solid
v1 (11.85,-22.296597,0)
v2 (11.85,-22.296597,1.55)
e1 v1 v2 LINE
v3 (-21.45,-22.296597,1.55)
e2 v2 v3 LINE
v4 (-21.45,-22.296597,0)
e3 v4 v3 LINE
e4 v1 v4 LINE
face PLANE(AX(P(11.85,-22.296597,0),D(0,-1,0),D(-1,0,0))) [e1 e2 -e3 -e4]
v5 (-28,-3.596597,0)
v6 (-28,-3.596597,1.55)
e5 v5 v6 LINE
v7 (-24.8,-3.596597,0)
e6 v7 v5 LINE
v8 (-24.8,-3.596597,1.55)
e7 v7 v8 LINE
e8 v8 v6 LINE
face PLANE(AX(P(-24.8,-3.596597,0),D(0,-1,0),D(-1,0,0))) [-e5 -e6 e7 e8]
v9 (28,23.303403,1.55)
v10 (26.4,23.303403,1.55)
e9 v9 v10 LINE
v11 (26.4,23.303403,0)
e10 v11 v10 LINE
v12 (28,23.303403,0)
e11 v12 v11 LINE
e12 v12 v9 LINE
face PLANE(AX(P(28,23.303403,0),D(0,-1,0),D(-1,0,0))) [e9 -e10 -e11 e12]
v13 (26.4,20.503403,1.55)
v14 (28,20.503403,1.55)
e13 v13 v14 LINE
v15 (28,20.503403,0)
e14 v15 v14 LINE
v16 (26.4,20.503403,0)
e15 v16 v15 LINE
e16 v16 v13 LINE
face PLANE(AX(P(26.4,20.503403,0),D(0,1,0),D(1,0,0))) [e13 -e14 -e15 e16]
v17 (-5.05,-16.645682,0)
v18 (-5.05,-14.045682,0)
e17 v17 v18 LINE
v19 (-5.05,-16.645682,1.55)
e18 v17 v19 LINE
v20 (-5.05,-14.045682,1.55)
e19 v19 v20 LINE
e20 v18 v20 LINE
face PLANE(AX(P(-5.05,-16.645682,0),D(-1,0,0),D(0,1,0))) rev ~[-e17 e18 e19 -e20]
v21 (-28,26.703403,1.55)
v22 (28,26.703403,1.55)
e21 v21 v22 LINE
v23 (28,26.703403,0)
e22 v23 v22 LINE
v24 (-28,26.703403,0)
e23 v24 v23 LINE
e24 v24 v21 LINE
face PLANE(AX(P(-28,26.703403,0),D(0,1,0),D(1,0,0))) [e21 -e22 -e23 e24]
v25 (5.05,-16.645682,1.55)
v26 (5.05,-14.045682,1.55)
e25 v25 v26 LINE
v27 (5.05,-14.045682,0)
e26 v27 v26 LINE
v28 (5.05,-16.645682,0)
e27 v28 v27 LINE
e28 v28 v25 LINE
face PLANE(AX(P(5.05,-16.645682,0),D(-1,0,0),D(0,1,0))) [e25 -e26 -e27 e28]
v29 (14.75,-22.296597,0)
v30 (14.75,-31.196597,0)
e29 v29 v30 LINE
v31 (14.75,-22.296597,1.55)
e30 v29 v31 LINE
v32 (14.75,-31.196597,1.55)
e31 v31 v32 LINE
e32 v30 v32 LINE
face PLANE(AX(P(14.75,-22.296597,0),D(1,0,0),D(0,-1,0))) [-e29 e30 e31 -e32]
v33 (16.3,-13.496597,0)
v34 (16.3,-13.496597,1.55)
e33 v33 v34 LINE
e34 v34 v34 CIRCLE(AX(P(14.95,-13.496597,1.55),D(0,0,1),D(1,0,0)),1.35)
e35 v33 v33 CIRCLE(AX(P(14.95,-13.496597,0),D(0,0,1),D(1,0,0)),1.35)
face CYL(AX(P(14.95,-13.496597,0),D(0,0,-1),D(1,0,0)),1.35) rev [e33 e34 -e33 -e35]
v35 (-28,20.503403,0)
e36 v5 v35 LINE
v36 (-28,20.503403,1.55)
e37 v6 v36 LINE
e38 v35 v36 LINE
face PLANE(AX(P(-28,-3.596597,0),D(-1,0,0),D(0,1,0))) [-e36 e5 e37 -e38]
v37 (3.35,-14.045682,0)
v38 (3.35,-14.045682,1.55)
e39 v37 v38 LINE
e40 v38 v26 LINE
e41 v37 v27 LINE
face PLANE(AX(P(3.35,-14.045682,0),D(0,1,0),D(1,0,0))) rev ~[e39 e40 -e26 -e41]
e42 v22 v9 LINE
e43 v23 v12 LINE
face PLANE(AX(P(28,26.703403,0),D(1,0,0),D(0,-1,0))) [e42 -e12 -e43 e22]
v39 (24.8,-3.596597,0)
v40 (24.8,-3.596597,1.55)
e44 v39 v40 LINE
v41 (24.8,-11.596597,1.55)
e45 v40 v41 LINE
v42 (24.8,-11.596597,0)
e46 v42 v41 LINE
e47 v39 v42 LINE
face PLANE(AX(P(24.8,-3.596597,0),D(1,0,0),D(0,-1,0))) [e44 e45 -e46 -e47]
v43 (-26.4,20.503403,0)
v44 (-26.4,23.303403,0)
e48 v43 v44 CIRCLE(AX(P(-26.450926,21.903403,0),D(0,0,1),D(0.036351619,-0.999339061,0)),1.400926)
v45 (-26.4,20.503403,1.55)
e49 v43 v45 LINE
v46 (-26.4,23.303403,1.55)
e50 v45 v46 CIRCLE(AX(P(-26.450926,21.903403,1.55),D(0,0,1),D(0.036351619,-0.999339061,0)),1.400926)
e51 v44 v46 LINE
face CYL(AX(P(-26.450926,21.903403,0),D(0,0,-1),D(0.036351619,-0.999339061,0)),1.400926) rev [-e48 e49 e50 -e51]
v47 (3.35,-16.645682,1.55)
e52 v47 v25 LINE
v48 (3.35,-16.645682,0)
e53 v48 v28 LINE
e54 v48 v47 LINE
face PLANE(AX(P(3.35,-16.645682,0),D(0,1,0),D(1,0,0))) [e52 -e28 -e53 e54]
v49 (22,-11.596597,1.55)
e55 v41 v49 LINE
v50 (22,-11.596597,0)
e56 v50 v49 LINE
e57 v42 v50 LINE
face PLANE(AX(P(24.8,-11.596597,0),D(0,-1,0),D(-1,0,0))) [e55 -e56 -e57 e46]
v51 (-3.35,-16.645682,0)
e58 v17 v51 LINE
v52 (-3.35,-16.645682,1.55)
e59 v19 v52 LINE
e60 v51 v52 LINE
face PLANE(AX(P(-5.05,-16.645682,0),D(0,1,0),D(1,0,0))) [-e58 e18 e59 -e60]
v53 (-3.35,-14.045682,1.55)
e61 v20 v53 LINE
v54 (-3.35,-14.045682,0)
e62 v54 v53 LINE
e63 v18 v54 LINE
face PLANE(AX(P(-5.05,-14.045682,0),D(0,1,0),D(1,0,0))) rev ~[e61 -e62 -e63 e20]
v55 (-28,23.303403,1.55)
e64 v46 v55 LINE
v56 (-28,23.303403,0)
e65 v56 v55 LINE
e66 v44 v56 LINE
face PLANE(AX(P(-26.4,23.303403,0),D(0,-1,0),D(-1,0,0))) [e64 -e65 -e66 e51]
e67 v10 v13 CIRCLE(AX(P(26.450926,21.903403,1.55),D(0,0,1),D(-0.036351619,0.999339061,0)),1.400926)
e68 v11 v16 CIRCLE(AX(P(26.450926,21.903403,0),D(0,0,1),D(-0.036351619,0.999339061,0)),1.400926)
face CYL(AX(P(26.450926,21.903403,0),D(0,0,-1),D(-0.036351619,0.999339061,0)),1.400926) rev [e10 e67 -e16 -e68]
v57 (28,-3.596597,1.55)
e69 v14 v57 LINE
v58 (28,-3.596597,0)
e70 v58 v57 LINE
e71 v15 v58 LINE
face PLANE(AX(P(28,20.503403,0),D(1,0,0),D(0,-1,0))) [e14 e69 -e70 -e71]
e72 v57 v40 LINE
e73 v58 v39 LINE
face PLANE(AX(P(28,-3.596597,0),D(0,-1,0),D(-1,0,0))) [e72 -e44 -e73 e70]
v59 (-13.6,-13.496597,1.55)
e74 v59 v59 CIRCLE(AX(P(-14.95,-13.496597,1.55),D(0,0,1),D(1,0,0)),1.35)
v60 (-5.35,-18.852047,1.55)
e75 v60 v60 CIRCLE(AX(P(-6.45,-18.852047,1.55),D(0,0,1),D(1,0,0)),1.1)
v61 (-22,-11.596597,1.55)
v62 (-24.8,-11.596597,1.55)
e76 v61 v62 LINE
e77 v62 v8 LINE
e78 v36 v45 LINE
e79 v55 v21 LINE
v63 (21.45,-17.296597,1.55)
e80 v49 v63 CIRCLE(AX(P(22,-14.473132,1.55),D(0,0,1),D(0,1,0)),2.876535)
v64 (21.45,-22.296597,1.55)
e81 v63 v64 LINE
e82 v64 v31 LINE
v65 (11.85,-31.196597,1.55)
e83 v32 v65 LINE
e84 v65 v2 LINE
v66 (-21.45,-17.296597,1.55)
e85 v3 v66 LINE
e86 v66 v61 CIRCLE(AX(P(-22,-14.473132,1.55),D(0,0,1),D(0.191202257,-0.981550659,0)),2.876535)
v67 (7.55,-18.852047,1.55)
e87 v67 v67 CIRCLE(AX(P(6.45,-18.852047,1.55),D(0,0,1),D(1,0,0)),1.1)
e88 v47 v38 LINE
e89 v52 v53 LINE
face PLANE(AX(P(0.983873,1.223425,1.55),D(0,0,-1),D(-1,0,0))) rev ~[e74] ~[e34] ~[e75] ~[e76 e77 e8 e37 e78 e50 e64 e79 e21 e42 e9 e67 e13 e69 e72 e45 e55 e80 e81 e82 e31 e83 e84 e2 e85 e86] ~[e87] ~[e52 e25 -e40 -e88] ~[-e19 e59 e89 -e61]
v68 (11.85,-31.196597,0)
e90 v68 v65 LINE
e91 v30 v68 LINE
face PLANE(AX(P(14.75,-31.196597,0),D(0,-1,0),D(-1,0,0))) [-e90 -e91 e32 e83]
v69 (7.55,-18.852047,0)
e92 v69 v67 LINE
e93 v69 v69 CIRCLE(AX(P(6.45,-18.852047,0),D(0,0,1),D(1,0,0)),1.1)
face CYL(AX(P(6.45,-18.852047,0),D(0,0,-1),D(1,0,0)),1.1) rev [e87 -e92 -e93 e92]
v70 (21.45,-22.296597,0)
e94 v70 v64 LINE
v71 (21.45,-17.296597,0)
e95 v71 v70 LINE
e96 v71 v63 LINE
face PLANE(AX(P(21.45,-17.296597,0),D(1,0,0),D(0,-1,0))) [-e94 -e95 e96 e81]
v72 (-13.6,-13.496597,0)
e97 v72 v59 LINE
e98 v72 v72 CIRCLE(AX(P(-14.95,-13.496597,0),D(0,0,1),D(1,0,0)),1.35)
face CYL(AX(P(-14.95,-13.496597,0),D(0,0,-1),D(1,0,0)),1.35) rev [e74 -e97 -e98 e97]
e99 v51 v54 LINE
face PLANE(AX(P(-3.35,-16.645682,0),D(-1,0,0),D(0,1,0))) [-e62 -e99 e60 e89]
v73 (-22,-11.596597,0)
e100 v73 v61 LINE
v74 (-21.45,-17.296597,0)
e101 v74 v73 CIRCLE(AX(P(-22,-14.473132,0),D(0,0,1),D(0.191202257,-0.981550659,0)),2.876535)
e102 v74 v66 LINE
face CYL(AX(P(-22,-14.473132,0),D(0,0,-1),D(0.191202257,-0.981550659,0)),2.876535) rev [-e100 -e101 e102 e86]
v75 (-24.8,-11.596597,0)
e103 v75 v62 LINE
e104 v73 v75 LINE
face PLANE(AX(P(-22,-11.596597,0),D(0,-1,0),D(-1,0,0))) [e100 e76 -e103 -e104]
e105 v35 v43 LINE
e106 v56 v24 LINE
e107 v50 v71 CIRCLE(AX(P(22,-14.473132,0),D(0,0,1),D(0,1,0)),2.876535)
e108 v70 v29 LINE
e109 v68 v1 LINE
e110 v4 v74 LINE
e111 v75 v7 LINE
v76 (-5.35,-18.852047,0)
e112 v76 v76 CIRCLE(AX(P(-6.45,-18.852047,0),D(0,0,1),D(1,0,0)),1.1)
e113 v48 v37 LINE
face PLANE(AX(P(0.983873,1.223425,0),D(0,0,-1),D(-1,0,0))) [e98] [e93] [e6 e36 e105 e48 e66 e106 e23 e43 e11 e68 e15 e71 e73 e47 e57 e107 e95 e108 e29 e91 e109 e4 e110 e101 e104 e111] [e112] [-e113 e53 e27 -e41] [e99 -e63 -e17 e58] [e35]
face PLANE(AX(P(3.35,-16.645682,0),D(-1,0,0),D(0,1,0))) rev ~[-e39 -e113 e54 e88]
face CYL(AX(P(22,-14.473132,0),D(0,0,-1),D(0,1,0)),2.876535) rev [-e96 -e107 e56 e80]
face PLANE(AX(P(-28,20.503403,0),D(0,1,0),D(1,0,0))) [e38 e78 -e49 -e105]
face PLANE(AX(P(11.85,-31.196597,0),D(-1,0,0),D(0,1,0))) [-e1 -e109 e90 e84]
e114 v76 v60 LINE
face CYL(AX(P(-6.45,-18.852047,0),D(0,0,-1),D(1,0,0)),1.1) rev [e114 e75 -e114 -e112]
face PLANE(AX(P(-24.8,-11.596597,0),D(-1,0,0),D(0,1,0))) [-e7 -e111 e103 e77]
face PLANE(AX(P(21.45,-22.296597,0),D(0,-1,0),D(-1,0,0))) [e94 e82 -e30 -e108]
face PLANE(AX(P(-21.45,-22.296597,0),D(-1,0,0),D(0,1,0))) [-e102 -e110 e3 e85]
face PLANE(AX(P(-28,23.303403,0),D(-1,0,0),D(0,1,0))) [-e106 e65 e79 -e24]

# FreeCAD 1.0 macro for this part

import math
import FreeCAD as App
import Part
import Sketcher
Q = App.Units.Quantity

doc = App.newDocument("Part")
params = doc.addObject("Spreadsheet::Sheet", "Params")
for row, (alias, value) in enumerate([
    ("sketch1_diameter", "2.2 mm"),
    ("sketch1_diameter2", "2.7 mm"),
    ("sketch1_width", "56 mm"),
    ("sketch1_height", "8 mm"),
    ("sketch1_height2", "5 mm"),
    ("pad1_length", "1.55 mm"),
], start=1):
    params.set(f"A{row}", alias)
    params.set(f"B{row}", "=" + value)
    params.setAlias(f"B{row}", alias)

body = doc.addObject("PartDesign::Body", "Body")

# Sketch on XY plane
sketch1 = doc.addObject("Sketcher::SketchObject", "Sketch")
body.addObject(sketch1)
sketch1.AttachmentSupport = (doc.XY_Plane, [""])
sketch1.MapMode = "FlatFace"
sketch1.addGeometry(Part.LineSegment(App.Vector(-28, 26.7, 0), App.Vector(-28, 23.3, 0)), False)
sketch1.addGeometry(Part.LineSegment(App.Vector(-28, 23.3, 0), App.Vector(-26.4, 23.3, 0)), False)
sketch1.addGeometry(Part.ArcOfCircle(Part.Circle(App.Vector(-26.5, 21.9, 0), App.Vector(0, 0, 1), 1.4), math.radians(-88), math.radians(88)), False)
sketch1.addGeometry(Part.LineSegment(App.Vector(-26.4, 20.5, 0), App.Vector(-28, 20.5, 0)), False)
sketch1.addGeometry(Part.LineSegment(App.Vector(-28, 20.5, 0), App.Vector(-28, -3.6, 0)), False)
sketch1.addGeometry(Part.LineSegment(App.Vector(-28, -3.6, 0), App.Vector(-24.8, -3.6, 0)), False)
sketch1.addGeometry(Part.LineSegment(App.Vector(-24.8, -3.6, 0), App.Vector(-24.8, -11.6, 0)), False)
sketch1.addGeometry(Part.LineSegment(App.Vector(-24.8, -11.6, 0), App.Vector(-22, -11.6, 0)), False)
sketch1.addGeometry(Part.ArcOfCircle(Part.Circle(App.Vector(-22, -14.5, 0), App.Vector(0, 0, 1), 2.9), math.radians(-79), math.radians(90)), False)
sketch1.addGeometry(Part.LineSegment(App.Vector(-21.4, -17.3, 0), App.Vector(-21.4, -22.3, 0)), False)
sketch1.addGeometry(Part.LineSegment(App.Vector(-21.4, -22.3, 0), App.Vector(11.8, -22.3, 0)), False)
sketch1.addGeometry(Part.LineSegment(App.Vector(11.8, -22.3, 0), App.Vector(11.8, -31.2, 0)), False)
sketch1.addGeometry(Part.LineSegment(App.Vector(11.8, -31.2, 0), App.Vector(14.8, -31.2, 0)), False)
sketch1.addGeometry(Part.LineSegment(App.Vector(14.8, -31.2, 0), App.Vector(14.8, -22.3, 0)), False)
sketch1.addGeometry(Part.LineSegment(App.Vector(14.8, -22.3, 0), App.Vector(21.4, -22.3, 0)), False)
sketch1.addGeometry(Part.LineSegment(App.Vector(21.4, -22.3, 0), App.Vector(21.4, -17.3, 0)), False)
sketch1.addGeometry(Part.ArcOfCircle(Part.Circle(App.Vector(22, -14.5, 0), App.Vector(0, 0, 1), 2.9), math.radians(90), math.radians(259)), False)
sketch1.addGeometry(Part.LineSegment(App.Vector(22, -11.6, 0), App.Vector(24.8, -11.6, 0)), False)
sketch1.addGeometry(Part.LineSegment(App.Vector(24.8, -11.6, 0), App.Vector(24.8, -3.6, 0)), False)
sketch1.addGeometry(Part.LineSegment(App.Vector(24.8, -3.6, 0), App.Vector(28, -3.6, 0)), False)
sketch1.addGeometry(Part.LineSegment(App.Vector(28, -3.6, 0), App.Vector(28, 20.5, 0)), False)
sketch1.addGeometry(Part.LineSegment(App.Vector(28, 20.5, 0), App.Vector(26.4, 20.5, 0)), False)
sketch1.addGeometry(Part.ArcOfCircle(Part.Circle(App.Vector(26.5, 21.9, 0), App.Vector(0, 0, 1), 1.4), math.radians(92), math.radians(268)), False)
sketch1.addGeometry(Part.LineSegment(App.Vector(26.4, 23.3, 0), App.Vector(28, 23.3, 0)), False)
sketch1.addGeometry(Part.LineSegment(App.Vector(28, 23.3, 0), App.Vector(28, 26.7, 0)), False)
sketch1.addGeometry(Part.LineSegment(App.Vector(28, 26.7, 0), App.Vector(-28, 26.7, 0)), False)
sketch1.addGeometry(Part.Circle(App.Vector(6.5, -18.9, 0), App.Vector(0, 0, 1), 1.1), False)
sketch1.addGeometry(Part.Circle(App.Vector(-6.5, -18.9, 0), App.Vector(0, 0, 1), 1.1), False)
sketch1.addGeometry(Part.LineSegment(App.Vector(3.4, -16.6, 0), App.Vector(3.4, -14, 0)), False)
sketch1.addGeometry(Part.LineSegment(App.Vector(3.4, -14, 0), App.Vector(5, -14, 0)), False)
sketch1.addGeometry(Part.LineSegment(App.Vector(5, -14, 0), App.Vector(5, -16.6, 0)), False)
sketch1.addGeometry(Part.LineSegment(App.Vector(5, -16.6, 0), App.Vector(3.4, -16.6, 0)), False)
sketch1.addGeometry(Part.Circle(App.Vector(14.9, -13.5, 0), App.Vector(0, 0, 1), 1.4), False)
sketch1.addGeometry(Part.LineSegment(App.Vector(-5, -16.6, 0), App.Vector(-5, -14, 0)), False)
sketch1.addGeometry(Part.LineSegment(App.Vector(-5, -14, 0), App.Vector(-3.4, -14, 0)), False)
sketch1.addGeometry(Part.LineSegment(App.Vector(-3.4, -14, 0), App.Vector(-3.4, -16.6, 0)), False)
sketch1.addGeometry(Part.LineSegment(App.Vector(-3.4, -16.6, 0), App.Vector(-5, -16.6, 0)), False)
sketch1.addGeometry(Part.Circle(App.Vector(-14.9, -13.5, 0), App.Vector(0, 0, 1), 1.4), False)
sketch1.addConstraint(Sketcher.Constraint("Coincident", 0, 2, 1, 1))
sketch1.addConstraint(Sketcher.Constraint("Coincident", 1, 2, 2, 2))
sketch1.addConstraint(Sketcher.Constraint("Coincident", 2, 1, 3, 1))
sketch1.addConstraint(Sketcher.Constraint("Coincident", 3, 2, 4, 1))
sketch1.addConstraint(Sketcher.Constraint("Coincident", 4, 2, 5, 1))
sketch1.addConstraint(Sketcher.Constraint("Coincident", 5, 2, 6, 1))
sketch1.addConstraint(Sketcher.Constraint("Coincident", 6, 2, 7, 1))
sketch1.addConstraint(Sketcher.Constraint("Tangent", 7, 2, 8, 2))
sketch1.addConstraint(Sketcher.Constraint("Coincident", 8, 1, 9, 1))
sketch1.addConstraint(Sketcher.Constraint("Coincident", 9, 2, 10, 1))
sketch1.addConstraint(Sketcher.Constraint("Coincident", 10, 2, 11, 1))
sketch1.addConstraint(Sketcher.Constraint("Coincident", 11, 2, 12, 1))
sketch1.addConstraint(Sketcher.Constraint("Coincident", 12, 2, 13, 1))
sketch1.addConstraint(Sketcher.Constraint("Coincident", 13, 2, 14, 1))
sketch1.addConstraint(Sketcher.Constraint("Coincident", 14, 2, 15, 1))
sketch1.addConstraint(Sketcher.Constraint("Coincident", 15, 2, 16, 2))
sketch1.addConstraint(Sketcher.Constraint("Tangent", 16, 1, 17, 1))
sketch1.addConstraint(Sketcher.Constraint("Coincident", 17, 2, 18, 1))
sketch1.addConstraint(Sketcher.Constraint("Coincident", 18, 2, 19, 1))
sketch1.addConstraint(Sketcher.Constraint("Coincident", 19, 2, 20, 1))
sketch1.addConstraint(Sketcher.Constraint("Coincident", 20, 2, 21, 1))
sketch1.addConstraint(Sketcher.Constraint("Coincident", 21, 2, 22, 2))
sketch1.addConstraint(Sketcher.Constraint("Coincident", 22, 1, 23, 1))
sketch1.addConstraint(Sketcher.Constraint("Coincident", 23, 2, 24, 1))
sketch1.addConstraint(Sketcher.Constraint("Coincident", 24, 2, 25, 1))
sketch1.addConstraint(Sketcher.Constraint("Coincident", 25, 2, 0, 1))
sketch1.addConstraint(Sketcher.Constraint("Coincident", 28, 2, 29, 1))
sketch1.addConstraint(Sketcher.Constraint("Coincident", 29, 2, 30, 1))
sketch1.addConstraint(Sketcher.Constraint("Coincident", 30, 2, 31, 1))
sketch1.addConstraint(Sketcher.Constraint("Coincident", 31, 2, 28, 1))
sketch1.addConstraint(Sketcher.Constraint("Coincident", 33, 2, 34, 1))
sketch1.addConstraint(Sketcher.Constraint("Coincident", 34, 2, 35, 1))
sketch1.addConstraint(Sketcher.Constraint("Coincident", 35, 2, 36, 1))
sketch1.addConstraint(Sketcher.Constraint("Coincident", 36, 2, 33, 1))
sketch1.addConstraint(Sketcher.Constraint("Vertical", 0))
sketch1.addConstraint(Sketcher.Constraint("Horizontal", 1))
sketch1.addConstraint(Sketcher.Constraint("Horizontal", 3))
sketch1.addConstraint(Sketcher.Constraint("Vertical", 4))
sketch1.addConstraint(Sketcher.Constraint("Horizontal", 5))
sketch1.addConstraint(Sketcher.Constraint("Vertical", 6))
sketch1.addConstraint(Sketcher.Constraint("Horizontal", 7))
sketch1.addConstraint(Sketcher.Constraint("Vertical", 9))
sketch1.addConstraint(Sketcher.Constraint("Horizontal", 10))
sketch1.addConstraint(Sketcher.Constraint("Vertical", 11))
sketch1.addConstraint(Sketcher.Constraint("Horizontal", 12))
sketch1.addConstraint(Sketcher.Constraint("Vertical", 13))
sketch1.addConstraint(Sketcher.Constraint("Horizontal", 14))
sketch1.addConstraint(Sketcher.Constraint("Vertical", 15))
sketch1.addConstraint(Sketcher.Constraint("Horizontal", 17))
sketch1.addConstraint(Sketcher.Constraint("Vertical", 18))
sketch1.addConstraint(Sketcher.Constraint("Horizontal", 19))
sketch1.addConstraint(Sketcher.Constraint("Vertical", 20))
sketch1.addConstraint(Sketcher.Constraint("Horizontal", 21))
sketch1.addConstraint(Sketcher.Constraint("Horizontal", 23))
sketch1.addConstraint(Sketcher.Constraint("Vertical", 24))
sketch1.addConstraint(Sketcher.Constraint("Horizontal", 25))
sketch1.addConstraint(Sketcher.Constraint("Vertical", 28))
sketch1.addConstraint(Sketcher.Constraint("Horizontal", 29))
sketch1.addConstraint(Sketcher.Constraint("Vertical", 30))
sketch1.addConstraint(Sketcher.Constraint("Horizontal", 31))
sketch1.addConstraint(Sketcher.Constraint("Vertical", 33))
sketch1.addConstraint(Sketcher.Constraint("Horizontal", 34))
sketch1.addConstraint(Sketcher.Constraint("Vertical", 35))
sketch1.addConstraint(Sketcher.Constraint("Horizontal", 36))
sketch1.addConstraint(Sketcher.Constraint("Equal", 8, 16))
sketch1.addConstraint(Sketcher.Constraint("Equal", 2, 22))
sketch1.addConstraint(Sketcher.Constraint("Equal", 26, 27))
sketch1.addConstraint(Sketcher.Constraint("Equal", 32, 37))
sketch1.addConstraint(Sketcher.Constraint("Symmetric", 8, 3, 16, 3, -2))
sketch1.addConstraint(Sketcher.Constraint("Symmetric", 2, 3, 22, 3, -2))
sketch1.addConstraint(Sketcher.Constraint("Symmetric", 26, 3, 27, 3, -2))
sketch1.addConstraint(Sketcher.Constraint("Symmetric", 32, 3, 37, 3, -2))
sketch1.addConstraint(Sketcher.Constraint("Symmetric", 9, 2, 14, 2, -2))
sketch1.addConstraint(Sketcher.Constraint("Symmetric", 5, 2, 18, 2, -2))
sketch1.addConstraint(Sketcher.Constraint("Symmetric", 3, 2, 20, 2, -2))
sketch1.addConstraint(Sketcher.Constraint("Symmetric", 0, 2, 23, 2, -2))
sketch1.addConstraint(Sketcher.Constraint("Symmetric", 29, 2, 33, 2, -2))
sketch1.addConstraint(Sketcher.Constraint("Symmetric", 31, 2, 35, 2, -2))
sketch1.addConstraint(Sketcher.Constraint("Vertical", 1, 2, 2, 1))
sketch1.addConstraint(Sketcher.Constraint("Vertical", 0, 2, 3, 2))
sketch1.addConstraint(Sketcher.Constraint("Diameter", 26, Q("2.2 mm")))
sketch1.addConstraint(Sketcher.Constraint("Diameter", 32, Q("2.7 mm")))
sketch1.addConstraint(Sketcher.Constraint("DistanceX", 25, 2, 25, 1, Q("56 mm")))
sketch1.addConstraint(Sketcher.Constraint("DistanceY", 6, 2, 6, 1, Q("8 mm")))
sketch1.addConstraint(Sketcher.Constraint("DistanceY", 9, 2, 9, 1, Q("5 mm")))
sketch1.addConstraint(Sketcher.Constraint("DistanceX", 1, 1, 1, 2, Q("1.6 mm")))
sketch1.addConstraint(Sketcher.Constraint("DistanceX", 5, 1, 5, 2, Q("3.2 mm")))
sketch1.addConstraint(Sketcher.Constraint("DistanceX", 7, 1, 7, 2, Q("2.8 mm")))
sketch1.addConstraint(Sketcher.Constraint("DistanceX", 10, 1, 10, 2, Q("33.3 mm")))
sketch1.addConstraint(Sketcher.Constraint("DistanceX", 12, 1, 12, 2, Q("2.9 mm")))
sketch1.addConstraint(Sketcher.Constraint("DistanceX", 14, 1, 14, 2, Q("6.7 mm")))
sketch1.addConstraint(Sketcher.Constraint("DistanceX", 29, 1, 29, 2, Q("1.7 mm")))
sketch1.addConstraint(Sketcher.Constraint("DistanceY", 0, 2, 0, 1, Q("3.4 mm")))
sketch1.addConstraint(Sketcher.Constraint("DistanceY", 4, 2, 4, 1, Q("24.1 mm")))
sketch1.addConstraint(Sketcher.Constraint("DistanceY", 11, 2, 11, 1, Q("8.9 mm")))
sketch1.addConstraint(Sketcher.Constraint("DistanceY", 28, 1, 28, 2, Q("2.6 mm")))
sketch1.addConstraint(Sketcher.Constraint("DistanceY", 37, 3, 2, 1, Q("34 mm")))
sketch1.addConstraint(Sketcher.Constraint("DistanceX", 27, 3, 26, 3, Q("12.9 mm")))
sketch1.addConstraint(Sketcher.Constraint("DistanceX", 26, 3, 32, 3, Q("8.5 mm")))
sketch1.addConstraint(Sketcher.Constraint("DistanceY", 32, 3, 22, 3, Q("35.4 mm")))
sketch1.addConstraint(Sketcher.Constraint("DistanceY", 8, 1, 7, 2, Q("5.7 mm")))
sketch1.addConstraint(Sketcher.Constraint("DistanceX", 28, 2, 26, 3, Q("3.1 mm")))
sketch1.addConstraint(Sketcher.Constraint("Radius", 2, Q("1.400926 mm")))
sketch1.addConstraint(Sketcher.Constraint("DistanceY", 8, 3, -1, 1, Q("14.473132 mm")))
sketch1.addConstraint(Sketcher.Constraint("DistanceY", 28, 2, -1, 1, Q("14.045682 mm")))
sketch1.addConstraint(Sketcher.Constraint("DistanceY", 26, 3, 22, 3, Q("40.755451 mm")))
sketch1.setExpression("Constraints[80]", "Params.sketch1_diameter")
sketch1.setExpression("Constraints[81]", "Params.sketch1_diameter2")
sketch1.setExpression("Constraints[82]", "Params.sketch1_width")
sketch1.setExpression("Constraints[83]", "Params.sketch1_height")
sketch1.setExpression("Constraints[84]", "Params.sketch1_height2")
pad1 = doc.addObject("PartDesign::Pad", "Pad")
body.addObject(pad1)
pad1.Profile = sketch1
pad1.setExpression("Length", "Params.pad1_length")

doc.recompute()
